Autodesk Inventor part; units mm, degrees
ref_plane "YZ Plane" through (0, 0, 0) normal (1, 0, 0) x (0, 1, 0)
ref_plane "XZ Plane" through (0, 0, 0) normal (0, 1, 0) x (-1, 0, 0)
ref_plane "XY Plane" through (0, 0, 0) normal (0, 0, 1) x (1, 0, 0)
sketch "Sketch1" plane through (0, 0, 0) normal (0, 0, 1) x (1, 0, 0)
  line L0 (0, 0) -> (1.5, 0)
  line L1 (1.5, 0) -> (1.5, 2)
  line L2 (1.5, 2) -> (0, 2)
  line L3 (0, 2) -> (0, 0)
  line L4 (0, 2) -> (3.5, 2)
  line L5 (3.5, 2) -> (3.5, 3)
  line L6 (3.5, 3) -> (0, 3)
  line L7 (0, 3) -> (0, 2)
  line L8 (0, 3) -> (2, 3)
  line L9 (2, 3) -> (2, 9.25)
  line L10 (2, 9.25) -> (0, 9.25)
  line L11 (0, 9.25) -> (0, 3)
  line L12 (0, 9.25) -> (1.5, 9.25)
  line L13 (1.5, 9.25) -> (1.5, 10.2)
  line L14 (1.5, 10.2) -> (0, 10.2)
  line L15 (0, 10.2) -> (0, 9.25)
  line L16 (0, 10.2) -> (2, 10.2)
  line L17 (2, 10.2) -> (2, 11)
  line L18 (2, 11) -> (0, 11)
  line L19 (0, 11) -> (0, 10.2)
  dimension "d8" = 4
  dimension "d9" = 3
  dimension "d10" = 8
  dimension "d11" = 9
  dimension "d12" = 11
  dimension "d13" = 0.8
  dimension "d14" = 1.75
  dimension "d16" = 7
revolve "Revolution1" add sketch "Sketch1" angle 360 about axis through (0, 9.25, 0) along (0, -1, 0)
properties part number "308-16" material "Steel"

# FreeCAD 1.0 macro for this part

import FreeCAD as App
import Part
import Sketcher


def add_polygon(sketch, points):
    """Adds a closed chain of lines whose ends are joined by coincident constraints."""
    first, n = sketch.GeometryCount, len(points)
    for a, b in zip(points, points[1:] + points[:1]):
        sketch.addGeometry(Part.LineSegment(App.Vector(*a, 0), App.Vector(*b, 0)), False)
    for i in range(n):
        sketch.addConstraint(Sketcher.Constraint("Coincident", first + i, 2, first + (i + 1) % n, 1))

doc = App.newDocument("Part")
body = doc.addObject("PartDesign::Body", "Body")

sketch1 = body.newObject("Sketcher::SketchObject", "Sketch")
sketch1.AttachmentSupport = (doc.getObject("XY_Plane"), [""])
sketch1.MapMode = "FlatFace"
add_polygon(sketch1, [(0, 0), (1.5, 0), (1.5, 2), (3.5, 2), (3.5, 3), (2, 3), (2, 9.2), (1.5, 9.2), (1.5, 10.2), (2, 10.2), (2, 11), (0, 11)])
sketch1.addConstraint(Sketcher.Constraint("Horizontal", 0))
sketch1.addConstraint(Sketcher.Constraint("Vertical", 1))
sketch1.addConstraint(Sketcher.Constraint("Horizontal", 2))
sketch1.addConstraint(Sketcher.Constraint("Vertical", 3))
sketch1.addConstraint(Sketcher.Constraint("Horizontal", 4))
sketch1.addConstraint(Sketcher.Constraint("Vertical", 5))
sketch1.addConstraint(Sketcher.Constraint("Horizontal", 6))
sketch1.addConstraint(Sketcher.Constraint("Vertical", 7))
sketch1.addConstraint(Sketcher.Constraint("Horizontal", 8))
sketch1.addConstraint(Sketcher.Constraint("Vertical", 9))
sketch1.addConstraint(Sketcher.Constraint("Horizontal", 10))
sketch1.addConstraint(Sketcher.Constraint("Vertical", 11))
sketch1.addConstraint(Sketcher.Constraint("Coincident", 11, 2, -1, 1))
sketch1.addConstraint(Sketcher.Constraint("Vertical", 1, 2, 6, 2))
sketch1.addConstraint(Sketcher.Constraint("Vertical", 5, 2, 8, 2))
sketch1.addConstraint(Sketcher.Constraint("Equal", 0, 4))
sketch1.addConstraint(Sketcher.Constraint("Equal", 10, 1))
sketch1.addConstraint(Sketcher.Constraint("DistanceY", 11, 2, 11, 1, 11.0))
sketch1.addConstraint(Sketcher.Constraint("DistanceY", 9, 1, 9, 2, 0.8))
sketch1.addConstraint(Sketcher.Constraint("DistanceY", -1, 1, 3, 2, 3.0))
sketch1.addConstraint(Sketcher.Constraint("DistanceX", 2, 1, 2, 2, 2.0))
sketch1.addConstraint(Sketcher.Constraint("DistanceY", 5, 2, 9, 2, 1.75))
sketch1.addConstraint(Sketcher.Constraint("DistanceX", 0, 1, 0, 2, 1.5))
revolution = body.newObject("PartDesign::Revolution", "Revolution")
revolution.Profile = sketch1
revolution.ReferenceAxis = (sketch1, ["V_Axis"])
revolution.Angle = 360

doc.recompute()
